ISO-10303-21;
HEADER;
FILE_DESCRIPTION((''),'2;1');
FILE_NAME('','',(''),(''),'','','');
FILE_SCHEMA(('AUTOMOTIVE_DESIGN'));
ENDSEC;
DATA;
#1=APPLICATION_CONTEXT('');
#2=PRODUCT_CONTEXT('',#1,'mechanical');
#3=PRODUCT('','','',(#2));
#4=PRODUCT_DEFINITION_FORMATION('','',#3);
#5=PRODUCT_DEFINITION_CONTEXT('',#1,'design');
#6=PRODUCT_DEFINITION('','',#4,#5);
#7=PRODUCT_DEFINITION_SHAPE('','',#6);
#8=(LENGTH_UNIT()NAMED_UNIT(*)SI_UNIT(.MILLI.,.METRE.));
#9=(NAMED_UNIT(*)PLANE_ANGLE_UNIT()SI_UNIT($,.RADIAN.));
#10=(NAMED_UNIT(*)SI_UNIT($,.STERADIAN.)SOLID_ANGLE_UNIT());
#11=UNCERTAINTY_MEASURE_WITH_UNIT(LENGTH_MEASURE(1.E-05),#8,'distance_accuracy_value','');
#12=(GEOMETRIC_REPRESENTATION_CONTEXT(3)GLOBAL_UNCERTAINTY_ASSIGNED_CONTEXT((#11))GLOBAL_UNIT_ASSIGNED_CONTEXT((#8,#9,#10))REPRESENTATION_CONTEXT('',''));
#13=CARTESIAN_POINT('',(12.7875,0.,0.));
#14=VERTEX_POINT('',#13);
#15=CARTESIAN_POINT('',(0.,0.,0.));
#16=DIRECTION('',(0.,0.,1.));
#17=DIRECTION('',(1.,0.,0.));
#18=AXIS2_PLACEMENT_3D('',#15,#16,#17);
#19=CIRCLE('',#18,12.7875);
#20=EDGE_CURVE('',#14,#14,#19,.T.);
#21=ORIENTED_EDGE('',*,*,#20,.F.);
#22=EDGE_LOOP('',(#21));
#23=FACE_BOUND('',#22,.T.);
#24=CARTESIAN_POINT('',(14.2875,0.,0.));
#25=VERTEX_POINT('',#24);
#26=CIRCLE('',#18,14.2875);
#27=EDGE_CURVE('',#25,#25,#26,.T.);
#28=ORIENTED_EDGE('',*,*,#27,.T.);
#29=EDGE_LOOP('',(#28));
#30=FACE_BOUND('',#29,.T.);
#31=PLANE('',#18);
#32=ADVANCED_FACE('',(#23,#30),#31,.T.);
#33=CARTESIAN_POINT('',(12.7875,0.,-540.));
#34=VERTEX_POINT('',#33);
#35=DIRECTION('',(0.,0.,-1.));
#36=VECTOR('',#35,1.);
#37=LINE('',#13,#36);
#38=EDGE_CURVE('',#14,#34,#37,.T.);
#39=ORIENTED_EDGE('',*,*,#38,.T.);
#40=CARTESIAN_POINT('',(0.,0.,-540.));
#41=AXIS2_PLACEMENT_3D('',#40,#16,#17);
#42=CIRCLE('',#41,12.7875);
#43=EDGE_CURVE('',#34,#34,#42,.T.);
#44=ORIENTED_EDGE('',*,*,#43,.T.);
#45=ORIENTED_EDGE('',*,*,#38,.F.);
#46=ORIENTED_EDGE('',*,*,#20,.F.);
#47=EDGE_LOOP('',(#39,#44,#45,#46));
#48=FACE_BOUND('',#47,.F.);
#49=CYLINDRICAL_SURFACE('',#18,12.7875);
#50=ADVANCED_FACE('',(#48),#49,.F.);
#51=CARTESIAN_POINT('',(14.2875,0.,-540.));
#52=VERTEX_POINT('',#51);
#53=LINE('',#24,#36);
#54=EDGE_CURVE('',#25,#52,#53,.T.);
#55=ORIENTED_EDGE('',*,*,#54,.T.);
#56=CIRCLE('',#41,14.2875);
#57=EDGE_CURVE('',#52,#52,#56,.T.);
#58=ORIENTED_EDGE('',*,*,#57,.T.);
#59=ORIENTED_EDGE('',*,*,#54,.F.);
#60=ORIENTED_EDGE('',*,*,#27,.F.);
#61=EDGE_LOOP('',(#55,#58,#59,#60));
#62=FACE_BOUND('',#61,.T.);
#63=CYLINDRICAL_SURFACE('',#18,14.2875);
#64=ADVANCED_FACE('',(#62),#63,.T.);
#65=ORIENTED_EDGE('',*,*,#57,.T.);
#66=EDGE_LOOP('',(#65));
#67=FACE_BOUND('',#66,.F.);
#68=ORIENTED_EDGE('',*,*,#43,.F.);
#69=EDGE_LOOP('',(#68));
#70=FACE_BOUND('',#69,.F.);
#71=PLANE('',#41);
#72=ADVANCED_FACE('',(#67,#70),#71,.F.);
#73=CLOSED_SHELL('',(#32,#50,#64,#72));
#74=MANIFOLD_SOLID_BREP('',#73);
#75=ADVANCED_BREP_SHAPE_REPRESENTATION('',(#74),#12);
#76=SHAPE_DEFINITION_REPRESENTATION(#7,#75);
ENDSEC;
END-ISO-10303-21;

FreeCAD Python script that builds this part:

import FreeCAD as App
import Part
import Sketcher
from FreeCAD import Vector

doc = App.newDocument("Part")
body = doc.addObject("PartDesign::Body", "Body")

# Sketch on XY plane
sketch1 = body.newObject("Sketcher::SketchObject", "Sketch")
sketch1.AttachmentSupport = (doc.getObject("XY_Plane"), [""])
sketch1.MapMode = "FlatFace"
sketch1.addGeometry(Part.Circle(Vector(0, 0, 0), Vector(0, 0, 1), 14), False)
sketch1.addGeometry(Part.Circle(Vector(0, 0, 0), Vector(0, 0, 1), 13), False)
sketch1.addConstraint(Sketcher.Constraint("Coincident", 0, 3, -1, 1))
sketch1.addConstraint(Sketcher.Constraint("Coincident", 1, 3, -1, 1))
sketch1.addConstraint(Sketcher.Constraint("Diameter", 0, 28.575))
sketch1.addConstraint(Sketcher.Constraint("Diameter", 1, 25.575))
pad1 = body.newObject("PartDesign::Pad", "Pad")
pad1.Profile = sketch1
pad1.Length = 540
pad1.Reversed = True

doc.recompute()
